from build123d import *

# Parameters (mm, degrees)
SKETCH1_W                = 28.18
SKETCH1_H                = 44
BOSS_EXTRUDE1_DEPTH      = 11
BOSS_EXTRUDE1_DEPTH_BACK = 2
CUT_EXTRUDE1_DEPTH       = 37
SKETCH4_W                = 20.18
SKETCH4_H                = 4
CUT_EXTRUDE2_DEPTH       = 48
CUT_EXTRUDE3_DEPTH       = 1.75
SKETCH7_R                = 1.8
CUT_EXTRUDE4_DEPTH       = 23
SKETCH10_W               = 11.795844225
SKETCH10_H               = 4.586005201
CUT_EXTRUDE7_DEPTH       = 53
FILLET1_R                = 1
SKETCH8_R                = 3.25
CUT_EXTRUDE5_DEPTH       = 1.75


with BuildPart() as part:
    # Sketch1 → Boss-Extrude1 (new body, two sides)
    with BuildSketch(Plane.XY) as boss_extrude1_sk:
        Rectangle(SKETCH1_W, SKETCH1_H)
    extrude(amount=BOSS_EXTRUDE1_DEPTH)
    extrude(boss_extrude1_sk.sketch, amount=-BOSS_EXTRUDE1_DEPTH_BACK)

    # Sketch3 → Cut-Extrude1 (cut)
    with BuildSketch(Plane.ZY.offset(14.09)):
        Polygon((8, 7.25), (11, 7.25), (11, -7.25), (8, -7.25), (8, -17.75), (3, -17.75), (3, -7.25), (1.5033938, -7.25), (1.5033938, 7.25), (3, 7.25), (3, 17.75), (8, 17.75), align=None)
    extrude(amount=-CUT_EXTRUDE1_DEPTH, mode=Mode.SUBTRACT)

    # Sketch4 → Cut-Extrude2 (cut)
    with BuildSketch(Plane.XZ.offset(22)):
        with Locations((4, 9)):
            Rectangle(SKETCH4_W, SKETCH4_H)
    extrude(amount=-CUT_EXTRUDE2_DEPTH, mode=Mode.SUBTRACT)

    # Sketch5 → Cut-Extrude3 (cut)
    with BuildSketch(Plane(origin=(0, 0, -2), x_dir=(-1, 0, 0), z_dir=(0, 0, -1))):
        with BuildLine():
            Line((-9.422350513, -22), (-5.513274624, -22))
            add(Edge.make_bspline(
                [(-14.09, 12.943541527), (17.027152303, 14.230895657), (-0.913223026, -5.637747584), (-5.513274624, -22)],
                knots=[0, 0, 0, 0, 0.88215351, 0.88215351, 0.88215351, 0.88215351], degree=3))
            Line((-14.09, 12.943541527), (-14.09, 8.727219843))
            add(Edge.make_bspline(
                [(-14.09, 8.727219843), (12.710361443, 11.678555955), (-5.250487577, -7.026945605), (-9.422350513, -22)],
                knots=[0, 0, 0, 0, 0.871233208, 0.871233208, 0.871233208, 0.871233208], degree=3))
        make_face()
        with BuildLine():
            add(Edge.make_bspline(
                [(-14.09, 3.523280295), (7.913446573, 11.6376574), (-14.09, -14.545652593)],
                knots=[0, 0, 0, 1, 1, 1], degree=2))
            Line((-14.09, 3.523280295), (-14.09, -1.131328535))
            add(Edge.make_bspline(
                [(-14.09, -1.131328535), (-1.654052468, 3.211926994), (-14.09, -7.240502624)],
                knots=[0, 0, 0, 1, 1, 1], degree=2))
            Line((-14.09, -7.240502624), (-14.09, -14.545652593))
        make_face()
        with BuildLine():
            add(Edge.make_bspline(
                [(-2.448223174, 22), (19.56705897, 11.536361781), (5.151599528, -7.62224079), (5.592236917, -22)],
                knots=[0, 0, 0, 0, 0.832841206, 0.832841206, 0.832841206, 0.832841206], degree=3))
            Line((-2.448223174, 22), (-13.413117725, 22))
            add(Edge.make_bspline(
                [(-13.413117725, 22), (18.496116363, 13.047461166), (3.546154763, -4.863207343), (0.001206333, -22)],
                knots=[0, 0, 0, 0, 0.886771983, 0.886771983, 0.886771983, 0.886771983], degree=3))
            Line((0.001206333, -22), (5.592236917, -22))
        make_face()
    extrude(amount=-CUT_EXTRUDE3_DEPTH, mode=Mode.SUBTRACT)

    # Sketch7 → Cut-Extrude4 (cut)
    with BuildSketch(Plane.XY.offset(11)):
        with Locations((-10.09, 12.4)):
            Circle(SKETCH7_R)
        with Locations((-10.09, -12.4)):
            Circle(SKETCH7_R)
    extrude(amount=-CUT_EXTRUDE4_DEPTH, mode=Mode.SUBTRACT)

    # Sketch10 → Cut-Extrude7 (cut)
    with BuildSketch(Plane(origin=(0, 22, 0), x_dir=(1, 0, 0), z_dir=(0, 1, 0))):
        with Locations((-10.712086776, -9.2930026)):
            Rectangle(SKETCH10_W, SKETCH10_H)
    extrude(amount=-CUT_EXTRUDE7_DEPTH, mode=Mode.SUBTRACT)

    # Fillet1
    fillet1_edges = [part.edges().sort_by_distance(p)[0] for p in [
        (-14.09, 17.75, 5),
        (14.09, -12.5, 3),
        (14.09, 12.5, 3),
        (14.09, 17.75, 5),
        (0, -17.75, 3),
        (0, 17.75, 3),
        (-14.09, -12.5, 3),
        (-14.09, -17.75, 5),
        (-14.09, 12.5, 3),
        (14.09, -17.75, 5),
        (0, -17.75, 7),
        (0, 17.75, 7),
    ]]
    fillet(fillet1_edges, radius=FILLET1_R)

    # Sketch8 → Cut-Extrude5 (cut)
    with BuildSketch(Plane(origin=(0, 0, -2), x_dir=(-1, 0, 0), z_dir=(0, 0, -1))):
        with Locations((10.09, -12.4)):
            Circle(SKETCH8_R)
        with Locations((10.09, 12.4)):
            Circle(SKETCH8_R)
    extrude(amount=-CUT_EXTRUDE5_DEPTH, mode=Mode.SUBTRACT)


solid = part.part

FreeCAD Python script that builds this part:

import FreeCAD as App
import Part
import Sketcher
Q = App.Units.Quantity


def edges_at(feature, points):
    """Names of the edges that pass closest to the given points."""
    edges = feature.Shape.Edges
    near = lambda p: min(range(len(edges)), key=lambda i: edges[i].distToShape(Part.Vertex(*p))[0])
    return sorted({f"Edge{near(p) + 1}" for p in points})

doc = App.newDocument("Part")
body = doc.addObject("PartDesign::Body", "Body")

sketch1 = body.newObject("Sketcher::SketchObject", "Sketch")
sketch1.AttachmentSupport = (doc.getObject("XY_Plane"), [""])
sketch1.MapMode = "FlatFace"
sketch1.addGeometry([
    Part.LineSegment(App.Vector(-14.09, 22, 0), App.Vector(-14.09, -22, 0)),
    Part.LineSegment(App.Vector(-14.09, -22, 0), App.Vector(14.09, -22, 0)),
    Part.LineSegment(App.Vector(14.09, -22, 0), App.Vector(14.09, 22, 0)),
    Part.LineSegment(App.Vector(14.09, 22, 0), App.Vector(-14.09, 22, 0)),
], False)
sketch1.addConstraint([
    Sketcher.Constraint("Coincident", 0, 2, 1, 1),
    Sketcher.Constraint("Coincident", 1, 2, 2, 1),
    Sketcher.Constraint("Coincident", 2, 2, 3, 1),
    Sketcher.Constraint("Coincident", 3, 2, 0, 1),
    Sketcher.Constraint("Vertical", 0),
    Sketcher.Constraint("Horizontal", 1),
    Sketcher.Constraint("Vertical", 2),
    Sketcher.Constraint("Horizontal", 3),
    Sketcher.Constraint("Symmetric", 0, 2, 2, 2, -1, 1),
    Sketcher.Constraint("DistanceY", 0, 2, 0, 1, Q("44 mm")),
    Sketcher.Constraint("DistanceX", 1, 1, 1, 2, Q("28.18 mm")),
])
pad1 = body.newObject("PartDesign::Pad", "Pad")
pad1.Profile = sketch1
pad1.Type = "TwoLengths"
pad1.Length = 11
pad1.Length2 = 2

sketch2 = body.newObject("Sketcher::SketchObject", "Sketch001")
sketch2.AttachmentSupport = (doc.getObject("YZ_Plane"), [""])
sketch2.MapMode = "FlatFace"
sketch2.AttachmentOffset = App.Placement(App.Vector(0, 0, -14.09), App.Rotation())
sketch2.addGeometry([
    Part.LineSegment(App.Vector(7.25, 11, 0), App.Vector(7.25, 8, 0)),
    Part.LineSegment(App.Vector(7.25, 8, 0), App.Vector(17.75, 8, 0)),
    Part.LineSegment(App.Vector(17.75, 8, 0), App.Vector(17.75, 3, 0)),
    Part.LineSegment(App.Vector(17.75, 3, 0), App.Vector(7.25, 3, 0)),
    Part.LineSegment(App.Vector(7.25, 3, 0), App.Vector(7.25, 1.503394, 0)),
    Part.LineSegment(App.Vector(7.25, 1.503394, 0), App.Vector(-7.25, 1.503394, 0)),
    Part.LineSegment(App.Vector(-7.25, 1.503394, 0), App.Vector(-7.25, 3, 0)),
    Part.LineSegment(App.Vector(-7.25, 3, 0), App.Vector(-17.75, 3, 0)),
    Part.LineSegment(App.Vector(-17.75, 3, 0), App.Vector(-17.75, 8, 0)),
    Part.LineSegment(App.Vector(-17.75, 8, 0), App.Vector(-7.25, 8, 0)),
    Part.LineSegment(App.Vector(-7.25, 8, 0), App.Vector(-7.25, 11, 0)),
    Part.LineSegment(App.Vector(-7.25, 11, 0), App.Vector(7.25, 11, 0)),
], False)
sketch2.addConstraint([
    Sketcher.Constraint("Coincident", 0, 2, 1, 1),
    Sketcher.Constraint("Coincident", 1, 2, 2, 1),
    Sketcher.Constraint("Coincident", 2, 2, 3, 1),
    Sketcher.Constraint("Coincident", 3, 2, 4, 1),
    Sketcher.Constraint("Coincident", 4, 2, 5, 1),
    Sketcher.Constraint("Coincident", 5, 2, 6, 1),
    Sketcher.Constraint("Coincident", 6, 2, 7, 1),
    Sketcher.Constraint("Coincident", 7, 2, 8, 1),
    Sketcher.Constraint("Coincident", 8, 2, 9, 1),
    Sketcher.Constraint("Coincident", 9, 2, 10, 1),
    Sketcher.Constraint("Coincident", 10, 2, 11, 1),
    Sketcher.Constraint("Coincident", 11, 2, 0, 1),
    Sketcher.Constraint("Vertical", 0),
    Sketcher.Constraint("Horizontal", 1),
    Sketcher.Constraint("Vertical", 2),
    Sketcher.Constraint("Horizontal", 3),
    Sketcher.Constraint("Vertical", 4),
    Sketcher.Constraint("Horizontal", 5),
    Sketcher.Constraint("Vertical", 6),
    Sketcher.Constraint("Horizontal", 7),
    Sketcher.Constraint("Vertical", 8),
    Sketcher.Constraint("Horizontal", 9),
    Sketcher.Constraint("Vertical", 10),
    Sketcher.Constraint("Horizontal", 11),
    Sketcher.Constraint("Symmetric", 3, 2, 6, 2, -2),
    Sketcher.Constraint("Symmetric", 1, 2, 8, 2, -2),
    Sketcher.Constraint("Vertical", 0, 2, 3, 2),
    Sketcher.Constraint("Vertical", 6, 2, 9, 2),
    Sketcher.Constraint("DistanceY", 0, 2, 0, 1, Q("3 mm")),
    Sketcher.Constraint("DistanceY", 2, 2, 2, 1, Q("5 mm")),
    Sketcher.Constraint("DistanceX", 1, 1, 1, 2, Q("10.5 mm")),
    Sketcher.Constraint("DistanceX", 5, 2, 5, 1, Q("14.5 mm")),
    Sketcher.Constraint("DistanceY", -1, 1, 0, 2, Q("8 mm")),
    Sketcher.Constraint("DistanceY", 4, 2, 4, 1, Q("1.496606 mm")),
])
pocket1 = body.newObject("PartDesign::Pocket", "Pocket")
pocket1.Profile = sketch2
pocket1.Length = 37
pocket1.Reversed = True

sketch3 = body.newObject("Sketcher::SketchObject", "Sketch002")
sketch3.AttachmentSupport = (doc.getObject("XZ_Plane"), [""])
sketch3.MapMode = "FlatFace"
sketch3.AttachmentOffset = App.Placement(App.Vector(0, 0, 22), App.Rotation())
sketch3.addGeometry([
    Part.LineSegment(App.Vector(-6.09, 11, 0), App.Vector(-6.09, 7, 0)),
    Part.LineSegment(App.Vector(-6.09, 7, 0), App.Vector(14.09, 7, 0)),
    Part.LineSegment(App.Vector(14.09, 7, 0), App.Vector(14.09, 11, 0)),
    Part.LineSegment(App.Vector(14.09, 11, 0), App.Vector(-6.09, 11, 0)),
], False)
sketch3.addConstraint([
    Sketcher.Constraint("Coincident", 0, 2, 1, 1),
    Sketcher.Constraint("Coincident", 1, 2, 2, 1),
    Sketcher.Constraint("Coincident", 2, 2, 3, 1),
    Sketcher.Constraint("Coincident", 3, 2, 0, 1),
    Sketcher.Constraint("Vertical", 0),
    Sketcher.Constraint("Horizontal", 1),
    Sketcher.Constraint("Vertical", 2),
    Sketcher.Constraint("Horizontal", 3),
    Sketcher.Constraint("DistanceY", 0, 2, 0, 1, Q("4 mm")),
    Sketcher.Constraint("DistanceY", -1, 1, 0, 2, Q("7 mm")),
    Sketcher.Constraint("DistanceX", 1, 1, 1, 2, Q("20.18 mm")),
    Sketcher.Constraint("DistanceX", 0, 2, -1, 1, Q("6.09 mm")),
])
pocket2 = body.newObject("PartDesign::Pocket", "Pocket001")
pocket2.Profile = sketch3
pocket2.Length = 48

sketch4 = body.newObject("Sketcher::SketchObject", "Sketch003")
sketch4.AttachmentSupport = (doc.getObject("XY_Plane"), [""])
sketch4.MapMode = "FlatFace"
sketch4.AttachmentOffset = App.Placement(App.Vector(0, 0, -2), App.Rotation())
sketch4.addGeometry([
    Part.LineSegment(App.Vector(9.422351, -22, 0), App.Vector(5.513275, -22, 0)),
    Part.BSplineCurve([App.Vector(14.09, 12.943542, 0), App.Vector(-17.027152, 14.230896, 0), App.Vector(0.913223, -5.637748, 0), App.Vector(5.513275, -22, 0)], [4, 4], [0, 0.88215351], False, 3, [1, 1, 1, 1], False),
    Part.LineSegment(App.Vector(14.09, 12.943542, 0), App.Vector(14.09, 8.72722, 0)),
    Part.BSplineCurve([App.Vector(14.09, 8.72722, 0), App.Vector(-12.710361, 11.678556, 0), App.Vector(5.250488, -7.026946, 0), App.Vector(9.422351, -22, 0)], [4, 4], [0, 0.871233208], False, 3, [1, 1, 1, 1], False),
    Part.BSplineCurve([App.Vector(14.09, 3.52328, 0), App.Vector(-7.913447, 11.637657, 0), App.Vector(14.09, -14.545653, 0)], [3, 3], [0, 1], False, 2, [1, 1, 1], False),
    Part.LineSegment(App.Vector(14.09, 3.52328, 0), App.Vector(14.09, -1.131329, 0)),
    Part.BSplineCurve([App.Vector(14.09, -1.131329, 0), App.Vector(1.654052, 3.211927, 0), App.Vector(14.09, -7.240503, 0)], [3, 3], [0, 1], False, 2, [1, 1, 1], False),
    Part.LineSegment(App.Vector(14.09, -7.240503, 0), App.Vector(14.09, -14.545653, 0)),
    Part.BSplineCurve([App.Vector(2.448223, 22, 0), App.Vector(-19.567059, 11.536362, 0), App.Vector(-5.1516, -7.622241, 0), App.Vector(-5.592237, -22, 0)], [4, 4], [0, 0.832841206], False, 3, [1, 1, 1, 1], False),
    Part.LineSegment(App.Vector(2.448223, 22, 0), App.Vector(13.413118, 22, 0)),
    Part.BSplineCurve([App.Vector(13.413118, 22, 0), App.Vector(-18.496116, 13.047461, 0), App.Vector(-3.546155, -4.863207, 0), App.Vector(-0.001206, -22, 0)], [4, 4], [0, 0.886771983], False, 3, [1, 1, 1, 1], False),
    Part.LineSegment(App.Vector(-0.001206, -22, 0), App.Vector(-5.592237, -22, 0)),
], False)
sketch4.addConstraint([
    Sketcher.Constraint("Block", 1),
    Sketcher.Constraint("Block", 3),
    Sketcher.Constraint("Block", 4),
    Sketcher.Constraint("Block", 6),
    Sketcher.Constraint("Block", 8),
    Sketcher.Constraint("Block", 10),
    Sketcher.Constraint("Coincident", 0, 2, 1, 2),
    Sketcher.Constraint("Coincident", 1, 1, 2, 1),
    Sketcher.Constraint("Coincident", 2, 2, 3, 1),
    Sketcher.Constraint("Coincident", 3, 2, 0, 1),
    Sketcher.Constraint("Coincident", 4, 1, 5, 1),
    Sketcher.Constraint("Coincident", 5, 2, 6, 1),
    Sketcher.Constraint("Coincident", 6, 2, 7, 1),
    Sketcher.Constraint("Coincident", 7, 2, 4, 2),
    Sketcher.Constraint("Coincident", 8, 1, 9, 1),
    Sketcher.Constraint("Coincident", 9, 2, 10, 1),
    Sketcher.Constraint("Coincident", 10, 2, 11, 1),
    Sketcher.Constraint("Coincident", 11, 2, 8, 2),
])
pocket3 = body.newObject("PartDesign::Pocket", "Pocket002")
pocket3.Profile = sketch4
pocket3.Length = 1.75
pocket3.Reversed = True

sketch5 = body.newObject("Sketcher::SketchObject", "Sketch004")
sketch5.AttachmentSupport = (doc.getObject("XY_Plane"), [""])
sketch5.MapMode = "FlatFace"
sketch5.AttachmentOffset = App.Placement(App.Vector(0, 0, 11), App.Rotation())
sketch5.addGeometry([
    Part.Circle(App.Vector(-10.09, 12.4, 0), App.Vector(0, 0, 1), 1.8),
    Part.Circle(App.Vector(-10.09, -12.4, 0), App.Vector(0, 0, 1), 1.8),
], False)
sketch5.addConstraint([
    Sketcher.Constraint("Equal", 0, 1),
    Sketcher.Constraint("Symmetric", 0, 3, 1, 3, -1),
    Sketcher.Constraint("Diameter", 0, Q("3.6 mm")),
    Sketcher.Constraint("DistanceY", -1, 1, 0, 3, Q("12.4 mm")),
    Sketcher.Constraint("DistanceX", 0, 3, -1, 1, Q("10.09 mm")),
])
pocket4 = body.newObject("PartDesign::Pocket", "Pocket003")
pocket4.Profile = sketch5
pocket4.Length = 23

sketch6 = body.newObject("Sketcher::SketchObject", "Sketch005")
sketch6.AttachmentSupport = (doc.getObject("XZ_Plane"), [""])
sketch6.MapMode = "FlatFace"
sketch6.AttachmentOffset = App.Placement(App.Vector(0, 0, -22), App.Rotation())
sketch6.addGeometry([
    Part.LineSegment(App.Vector(-16.610009, 7, 0), App.Vector(-16.610009, 11.586005, 0)),
    Part.LineSegment(App.Vector(-16.610009, 11.586005, 0), App.Vector(-4.814165, 11.586005, 0)),
    Part.LineSegment(App.Vector(-4.814165, 11.586005, 0), App.Vector(-4.814165, 7, 0)),
    Part.LineSegment(App.Vector(-4.814165, 7, 0), App.Vector(-16.610009, 7, 0)),
], False)
sketch6.addConstraint([
    Sketcher.Constraint("Coincident", 0, 2, 1, 1),
    Sketcher.Constraint("Coincident", 1, 2, 2, 1),
    Sketcher.Constraint("Coincident", 2, 2, 3, 1),
    Sketcher.Constraint("Coincident", 3, 2, 0, 1),
    Sketcher.Constraint("Vertical", 0),
    Sketcher.Constraint("Horizontal", 1),
    Sketcher.Constraint("Vertical", 2),
    Sketcher.Constraint("Horizontal", 3),
    Sketcher.Constraint("DistanceY", -1, 1, 2, 2, Q("7 mm")),
    Sketcher.Constraint("DistanceX", 1, 1, 1, 2, Q("11.795844 mm")),
    Sketcher.Constraint("DistanceY", 0, 1, 0, 2, Q("4.586005 mm")),
    Sketcher.Constraint("DistanceX", 0, 2, -1, 1, Q("16.610009 mm")),
])
pocket5 = body.newObject("PartDesign::Pocket", "Pocket004")
pocket5.Profile = sketch6
pocket5.Length = 53
pocket5.Reversed = True
doc.recompute()

fillet = body.newObject("PartDesign::Fillet", "Fillet")
fillet.Base = (pocket5, edges_at(pocket5, [
    (-14.09, 17.75, 5),
    (14.09, -12.5, 3),
    (14.09, 12.5, 3),
    (14.09, 17.75, 5),
    (0, -17.75, 3),
    (0, 17.75, 3),
    (-14.09, -12.5, 3),
    (-14.09, -17.75, 5),
    (-14.09, 12.5, 3),
    (14.09, -17.75, 5),
    (4, -17.75, 7),
    (4, 17.75, 7),
]))
fillet.Radius = 1

sketch7 = body.newObject("Sketcher::SketchObject", "Sketch006")
sketch7.AttachmentSupport = (doc.getObject("XY_Plane"), [""])
sketch7.MapMode = "FlatFace"
sketch7.AttachmentOffset = App.Placement(App.Vector(0, 0, -2), App.Rotation())
sketch7.addGeometry([
    Part.Circle(App.Vector(-10.09, -12.4, 0), App.Vector(0, 0, 1), 3.25),
    Part.Circle(App.Vector(-10.09, 12.4, 0), App.Vector(0, 0, 1), 3.25),
], False)
sketch7.addConstraint([
    Sketcher.Constraint("Equal", 0, 1),
    Sketcher.Constraint("Symmetric", 0, 3, 1, 3, -1),
    Sketcher.Constraint("Diameter", 0, Q("6.5 mm")),
    Sketcher.Constraint("DistanceY", 0, 3, -1, 1, Q("12.4 mm")),
    Sketcher.Constraint("DistanceX", 0, 3, -1, 1, Q("10.09 mm")),
])
pocket6 = body.newObject("PartDesign::Pocket", "Pocket005")
pocket6.Profile = sketch7
pocket6.Length = 1.75
pocket6.Reversed = True

doc.recompute()
